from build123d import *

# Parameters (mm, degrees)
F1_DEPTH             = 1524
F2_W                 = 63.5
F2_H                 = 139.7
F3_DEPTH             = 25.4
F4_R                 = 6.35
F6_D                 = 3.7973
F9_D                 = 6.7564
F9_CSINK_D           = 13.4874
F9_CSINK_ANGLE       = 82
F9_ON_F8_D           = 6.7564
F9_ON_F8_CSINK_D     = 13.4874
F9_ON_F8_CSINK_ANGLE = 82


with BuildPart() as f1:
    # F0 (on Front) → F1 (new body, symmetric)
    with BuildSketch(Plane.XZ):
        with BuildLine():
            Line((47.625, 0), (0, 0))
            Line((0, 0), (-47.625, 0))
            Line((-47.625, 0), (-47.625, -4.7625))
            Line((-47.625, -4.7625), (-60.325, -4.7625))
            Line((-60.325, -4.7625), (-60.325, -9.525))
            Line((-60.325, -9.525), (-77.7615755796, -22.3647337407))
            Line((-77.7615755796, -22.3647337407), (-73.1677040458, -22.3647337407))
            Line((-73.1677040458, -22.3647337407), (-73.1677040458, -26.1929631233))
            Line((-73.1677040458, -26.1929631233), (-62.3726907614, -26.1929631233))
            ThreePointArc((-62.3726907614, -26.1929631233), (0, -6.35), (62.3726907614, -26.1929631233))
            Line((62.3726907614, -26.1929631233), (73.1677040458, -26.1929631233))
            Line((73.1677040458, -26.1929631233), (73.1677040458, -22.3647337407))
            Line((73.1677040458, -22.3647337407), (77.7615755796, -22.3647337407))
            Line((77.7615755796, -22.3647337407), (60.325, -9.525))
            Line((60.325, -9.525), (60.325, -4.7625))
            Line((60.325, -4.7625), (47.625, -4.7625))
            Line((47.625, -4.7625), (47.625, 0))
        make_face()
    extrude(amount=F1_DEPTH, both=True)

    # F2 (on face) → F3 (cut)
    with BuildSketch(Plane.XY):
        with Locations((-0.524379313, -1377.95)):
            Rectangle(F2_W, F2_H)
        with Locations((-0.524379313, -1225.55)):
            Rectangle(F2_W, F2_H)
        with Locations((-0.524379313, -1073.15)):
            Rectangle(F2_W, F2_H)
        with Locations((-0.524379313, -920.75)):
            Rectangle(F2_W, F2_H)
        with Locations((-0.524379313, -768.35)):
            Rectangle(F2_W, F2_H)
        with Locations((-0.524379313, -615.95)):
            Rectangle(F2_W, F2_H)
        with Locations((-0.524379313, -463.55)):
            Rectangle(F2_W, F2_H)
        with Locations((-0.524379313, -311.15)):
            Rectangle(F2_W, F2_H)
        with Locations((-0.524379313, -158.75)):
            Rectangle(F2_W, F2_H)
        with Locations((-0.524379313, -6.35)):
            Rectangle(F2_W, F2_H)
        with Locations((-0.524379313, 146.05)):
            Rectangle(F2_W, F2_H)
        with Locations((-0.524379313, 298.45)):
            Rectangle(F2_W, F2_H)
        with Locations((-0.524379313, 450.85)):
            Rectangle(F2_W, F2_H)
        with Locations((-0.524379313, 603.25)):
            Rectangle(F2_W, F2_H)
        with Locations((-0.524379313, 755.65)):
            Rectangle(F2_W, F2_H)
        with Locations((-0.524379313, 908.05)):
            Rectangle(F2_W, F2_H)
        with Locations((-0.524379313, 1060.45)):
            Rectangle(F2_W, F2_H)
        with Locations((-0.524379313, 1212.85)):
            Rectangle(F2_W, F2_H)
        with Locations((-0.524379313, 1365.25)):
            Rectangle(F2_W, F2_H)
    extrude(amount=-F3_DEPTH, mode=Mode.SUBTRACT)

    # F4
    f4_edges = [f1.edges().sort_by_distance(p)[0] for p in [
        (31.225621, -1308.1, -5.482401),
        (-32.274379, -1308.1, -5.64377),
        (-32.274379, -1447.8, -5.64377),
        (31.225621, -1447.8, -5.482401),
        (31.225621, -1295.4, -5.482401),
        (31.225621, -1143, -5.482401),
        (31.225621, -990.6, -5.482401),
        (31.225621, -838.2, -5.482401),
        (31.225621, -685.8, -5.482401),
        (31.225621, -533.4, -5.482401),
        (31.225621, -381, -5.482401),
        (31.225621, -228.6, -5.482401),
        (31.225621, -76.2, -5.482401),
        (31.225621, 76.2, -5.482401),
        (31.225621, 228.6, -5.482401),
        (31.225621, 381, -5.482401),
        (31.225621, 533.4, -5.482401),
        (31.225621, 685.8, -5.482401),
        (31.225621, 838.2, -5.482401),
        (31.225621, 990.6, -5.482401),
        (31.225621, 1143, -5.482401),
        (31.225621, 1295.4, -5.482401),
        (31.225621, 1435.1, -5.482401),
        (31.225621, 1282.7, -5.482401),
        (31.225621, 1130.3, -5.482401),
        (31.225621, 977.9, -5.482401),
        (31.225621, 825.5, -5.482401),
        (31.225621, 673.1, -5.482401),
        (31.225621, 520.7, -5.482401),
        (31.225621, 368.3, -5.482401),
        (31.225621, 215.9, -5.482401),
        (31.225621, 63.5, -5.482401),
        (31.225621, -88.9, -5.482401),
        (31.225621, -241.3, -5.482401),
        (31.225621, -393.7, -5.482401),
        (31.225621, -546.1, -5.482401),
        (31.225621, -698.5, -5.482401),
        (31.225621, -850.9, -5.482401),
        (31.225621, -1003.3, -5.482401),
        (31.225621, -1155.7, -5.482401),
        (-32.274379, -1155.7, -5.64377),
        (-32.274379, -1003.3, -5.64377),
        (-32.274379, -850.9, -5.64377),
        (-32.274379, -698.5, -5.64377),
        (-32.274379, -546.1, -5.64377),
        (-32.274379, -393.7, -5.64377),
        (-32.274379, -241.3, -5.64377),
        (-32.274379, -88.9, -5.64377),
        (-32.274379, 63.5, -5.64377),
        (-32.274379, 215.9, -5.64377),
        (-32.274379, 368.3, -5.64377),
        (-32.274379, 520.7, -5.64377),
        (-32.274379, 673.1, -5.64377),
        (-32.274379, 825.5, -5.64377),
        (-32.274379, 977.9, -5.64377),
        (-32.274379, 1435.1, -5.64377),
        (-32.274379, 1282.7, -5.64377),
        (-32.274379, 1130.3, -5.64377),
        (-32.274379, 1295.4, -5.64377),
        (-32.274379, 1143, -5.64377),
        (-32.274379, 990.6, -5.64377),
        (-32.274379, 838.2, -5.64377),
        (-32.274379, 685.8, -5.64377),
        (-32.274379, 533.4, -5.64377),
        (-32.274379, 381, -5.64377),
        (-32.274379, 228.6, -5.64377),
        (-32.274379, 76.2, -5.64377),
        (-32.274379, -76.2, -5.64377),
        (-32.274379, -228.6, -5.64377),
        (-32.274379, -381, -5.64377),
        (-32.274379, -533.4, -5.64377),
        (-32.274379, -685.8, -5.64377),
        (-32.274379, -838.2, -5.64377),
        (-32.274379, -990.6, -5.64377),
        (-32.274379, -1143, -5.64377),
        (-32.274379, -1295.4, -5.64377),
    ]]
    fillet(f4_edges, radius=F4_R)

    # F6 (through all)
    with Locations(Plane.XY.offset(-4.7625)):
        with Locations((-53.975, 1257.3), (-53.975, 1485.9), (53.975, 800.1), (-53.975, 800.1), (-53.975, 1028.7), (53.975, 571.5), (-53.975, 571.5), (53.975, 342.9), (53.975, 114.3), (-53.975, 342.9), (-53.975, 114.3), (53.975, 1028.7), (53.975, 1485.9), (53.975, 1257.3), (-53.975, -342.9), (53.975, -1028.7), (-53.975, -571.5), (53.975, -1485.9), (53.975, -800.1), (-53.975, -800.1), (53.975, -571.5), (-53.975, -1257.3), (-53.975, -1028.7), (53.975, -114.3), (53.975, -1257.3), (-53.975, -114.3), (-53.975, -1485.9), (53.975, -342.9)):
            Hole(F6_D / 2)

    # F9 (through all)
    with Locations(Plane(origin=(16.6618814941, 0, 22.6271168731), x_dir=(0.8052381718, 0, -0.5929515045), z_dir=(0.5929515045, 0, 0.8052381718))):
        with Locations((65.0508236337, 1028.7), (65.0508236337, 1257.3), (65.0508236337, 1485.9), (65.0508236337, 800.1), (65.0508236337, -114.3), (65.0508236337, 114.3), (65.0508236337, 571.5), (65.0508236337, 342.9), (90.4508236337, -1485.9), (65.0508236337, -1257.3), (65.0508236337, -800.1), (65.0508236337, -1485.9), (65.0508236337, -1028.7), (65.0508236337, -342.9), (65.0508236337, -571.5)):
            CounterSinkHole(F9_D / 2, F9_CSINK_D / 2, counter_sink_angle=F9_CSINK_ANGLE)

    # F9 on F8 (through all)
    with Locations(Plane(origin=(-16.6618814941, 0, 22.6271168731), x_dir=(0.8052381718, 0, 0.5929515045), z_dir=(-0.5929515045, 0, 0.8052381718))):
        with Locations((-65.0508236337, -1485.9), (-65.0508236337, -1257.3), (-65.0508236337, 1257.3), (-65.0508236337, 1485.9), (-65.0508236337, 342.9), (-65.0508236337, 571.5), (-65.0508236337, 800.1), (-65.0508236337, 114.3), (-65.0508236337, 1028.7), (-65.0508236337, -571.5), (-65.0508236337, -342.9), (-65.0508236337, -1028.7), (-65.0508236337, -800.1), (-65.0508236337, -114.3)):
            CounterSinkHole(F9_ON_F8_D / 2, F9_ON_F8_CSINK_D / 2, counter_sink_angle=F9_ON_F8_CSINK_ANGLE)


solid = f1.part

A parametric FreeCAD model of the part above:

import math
import FreeCAD as App
import Part
import Sketcher
from FreeCAD import Vector
Q = App.Units.Quantity


def edges_at(feature, points):
    """Names of the edges that pass closest to the given points."""
    edges = feature.Shape.Edges
    near = lambda p: min(range(len(edges)), key=lambda i: edges[i].distToShape(Part.Vertex(*p))[0])
    return sorted({f"Edge{near(p) + 1}" for p in points})


def add_polygon(sketch, points):
    """Adds a closed chain of lines whose ends are joined by coincident constraints."""
    first, n = sketch.GeometryCount, len(points)
    for a, b in zip(points, points[1:] + points[:1]):
        sketch.addGeometry(Part.LineSegment(App.Vector(*a, 0), App.Vector(*b, 0)), False)
    for i in range(n):
        sketch.addConstraint(Sketcher.Constraint("Coincident", first + i, 2, first + (i + 1) % n, 1))

doc = App.newDocument("Part")
body = doc.addObject("PartDesign::Body", "Body")

# Sketch on XZ plane
sketch1 = body.newObject("Sketcher::SketchObject", "Sketch")
sketch1.AttachmentSupport = (doc.getObject("XZ_Plane"), [""])
sketch1.MapMode = "FlatFace"
sketch1.addGeometry(Part.LineSegment(Vector(47.6, 0, 0), Vector(-47.6, 0, 0)), False)
sketch1.addGeometry(Part.LineSegment(Vector(-47.6, 0, 0), Vector(-47.6, -4.8, 0)), False)
sketch1.addGeometry(Part.LineSegment(Vector(-47.6, -4.8, 0), Vector(-60.3, -4.8, 0)), False)
sketch1.addGeometry(Part.LineSegment(Vector(-60.3, -4.8, 0), Vector(-60.3, -9.5, 0)), False)
sketch1.addGeometry(Part.LineSegment(Vector(-60.3, -9.5, 0), Vector(-77.8, -22.4, 0)), False)
sketch1.addGeometry(Part.LineSegment(Vector(-77.8, -22.4, 0), Vector(-73.2, -22.4, 0)), False)
sketch1.addGeometry(Part.LineSegment(Vector(-73.2, -22.4, 0), Vector(-73.2, -26.2, 0)), False)
sketch1.addGeometry(Part.LineSegment(Vector(-73.2, -26.2, 0), Vector(-62.4, -26.2, 0)), False)
sketch1.addGeometry(Part.ArcOfCircle(Part.Circle(Vector(0, -114.3, 0), Vector(0, 0, 1), 108), math.radians(55), math.radians(125)), False)
sketch1.addGeometry(Part.LineSegment(Vector(62.4, -26.2, 0), Vector(73.2, -26.2, 0)), False)
sketch1.addGeometry(Part.LineSegment(Vector(73.2, -26.2, 0), Vector(73.2, -22.4, 0)), False)
sketch1.addGeometry(Part.LineSegment(Vector(73.2, -22.4, 0), Vector(77.8, -22.4, 0)), False)
sketch1.addGeometry(Part.LineSegment(Vector(77.8, -22.4, 0), Vector(60.3, -9.5, 0)), False)
sketch1.addGeometry(Part.LineSegment(Vector(60.3, -9.5, 0), Vector(60.3, -4.8, 0)), False)
sketch1.addGeometry(Part.LineSegment(Vector(60.3, -4.8, 0), Vector(47.6, -4.8, 0)), False)
sketch1.addGeometry(Part.LineSegment(Vector(47.6, -4.8, 0), Vector(47.6, 0, 0)), False)
sketch1.addConstraint(Sketcher.Constraint("Coincident", 0, 2, 1, 1))
sketch1.addConstraint(Sketcher.Constraint("Coincident", 1, 2, 2, 1))
sketch1.addConstraint(Sketcher.Constraint("Coincident", 2, 2, 3, 1))
sketch1.addConstraint(Sketcher.Constraint("Coincident", 3, 2, 4, 1))
sketch1.addConstraint(Sketcher.Constraint("Coincident", 4, 2, 5, 1))
sketch1.addConstraint(Sketcher.Constraint("Coincident", 5, 2, 6, 1))
sketch1.addConstraint(Sketcher.Constraint("Coincident", 6, 2, 7, 1))
sketch1.addConstraint(Sketcher.Constraint("Coincident", 7, 2, 8, 2))
sketch1.addConstraint(Sketcher.Constraint("Coincident", 8, 1, 9, 1))
sketch1.addConstraint(Sketcher.Constraint("Coincident", 9, 2, 10, 1))
sketch1.addConstraint(Sketcher.Constraint("Coincident", 10, 2, 11, 1))
sketch1.addConstraint(Sketcher.Constraint("Coincident", 11, 2, 12, 1))
sketch1.addConstraint(Sketcher.Constraint("Coincident", 12, 2, 13, 1))
sketch1.addConstraint(Sketcher.Constraint("Coincident", 13, 2, 14, 1))
sketch1.addConstraint(Sketcher.Constraint("Coincident", 14, 2, 15, 1))
sketch1.addConstraint(Sketcher.Constraint("Coincident", 15, 2, 0, 1))
sketch1.addConstraint(Sketcher.Constraint("Horizontal", 0))
sketch1.addConstraint(Sketcher.Constraint("Vertical", 1))
sketch1.addConstraint(Sketcher.Constraint("Horizontal", 2))
sketch1.addConstraint(Sketcher.Constraint("Vertical", 3))
sketch1.addConstraint(Sketcher.Constraint("Horizontal", 5))
sketch1.addConstraint(Sketcher.Constraint("Vertical", 6))
sketch1.addConstraint(Sketcher.Constraint("Horizontal", 7))
sketch1.addConstraint(Sketcher.Constraint("Horizontal", 9))
sketch1.addConstraint(Sketcher.Constraint("Vertical", 10))
sketch1.addConstraint(Sketcher.Constraint("Horizontal", 11))
sketch1.addConstraint(Sketcher.Constraint("Vertical", 13))
sketch1.addConstraint(Sketcher.Constraint("Horizontal", 14))
sketch1.addConstraint(Sketcher.Constraint("Vertical", 15))
sketch1.addConstraint(Sketcher.Constraint("Symmetric", 0, 2, 15, 2, -1, 1))
sketch1.addConstraint(Sketcher.Constraint("Symmetric", 7, 2, 8, 1, -2))
sketch1.addConstraint(Sketcher.Constraint("Symmetric", 5, 2, 10, 2, -2))
sketch1.addConstraint(Sketcher.Constraint("Symmetric", 3, 2, 12, 2, -2))
sketch1.addConstraint(Sketcher.Constraint("Horizontal", 2, 2, 13, 2))
sketch1.addConstraint(Sketcher.Constraint("Equal", 5, 11))
sketch1.addConstraint(Sketcher.Constraint("Equal", 1, 3))
sketch1.addConstraint(Sketcher.Constraint("Radius", 8, Q("4.25 in")))
sketch1.addConstraint(Sketcher.Constraint("DistanceX", 2, 2, 2, 1, Q("0.5 in")))
sketch1.addConstraint(Sketcher.Constraint("DistanceX", 0, 2, 0, 1, Q("3.75 in")))
sketch1.addConstraint(Sketcher.Constraint("DistanceY", 8, 3, -1, 1, Q("4.5 in")))
sketch1.addConstraint(Sketcher.Constraint("DistanceY", 1, 2, 1, 1, Q("0.1875 in")))
sketch1.addConstraint(Sketcher.Constraint("DistanceX", 5, 1, 5, 2, 4.593872))
sketch1.addConstraint(Sketcher.Constraint("DistanceY", 6, 2, 6, 1, 3.828229))
sketch1.addConstraint(Sketcher.Constraint("DistanceX", 7, 1, 7, 2, 10.795013))
sketch1.addConstraint(Sketcher.Constraint("DistanceX", 7, 2, -1, 1, 62.372691))
pad1 = body.newObject("PartDesign::Pad", "Pad")
pad1.Profile = sketch1
pad1.Length = Q("120 in")
pad1.Midplane = True

# Sketch on XY plane
sketch2 = body.newObject("Sketcher::SketchObject", "Sketch001")
sketch2.AttachmentSupport = (doc.getObject("XY_Plane"), [""])
sketch2.MapMode = "FlatFace"
add_polygon(sketch2, [(-32, -1308), (-32, -1448), (31, -1448), (31, -1308)])  # lines 0-3
add_polygon(sketch2, [(-32, -1156), (-32, -1295), (31, -1295), (31, -1156)])  # lines 4-7
add_polygon(sketch2, [(-32, -1003), (-32, -1143), (31, -1143), (31, -1003)])  # lines 8-11
add_polygon(sketch2, [(-32, -851), (-32, -991), (31, -991), (31, -851)])  # lines 12-15
add_polygon(sketch2, [(-32, -698), (-32, -838), (31, -838), (31, -698)])  # lines 16-19
add_polygon(sketch2, [(-32, -546), (-32, -686), (31, -686), (31, -546)])  # lines 20-23
add_polygon(sketch2, [(-32, -394), (-32, -533), (31, -533), (31, -394)])  # lines 24-27
add_polygon(sketch2, [(-32, -241), (-32, -381), (31, -381), (31, -241)])  # lines 28-31
add_polygon(sketch2, [(-32, -89), (-32, -229), (31, -229), (31, -89)])  # lines 32-35
add_polygon(sketch2, [(-32, 64), (-32, -76), (31, -76), (31, 64)])  # lines 36-39
add_polygon(sketch2, [(-32, 216), (-32, 76), (31, 76), (31, 216)])  # lines 40-43
add_polygon(sketch2, [(-32, 368), (-32, 229), (31, 229), (31, 368)])  # lines 44-47
add_polygon(sketch2, [(-32, 521), (-32, 381), (31, 381), (31, 521)])  # lines 48-51
add_polygon(sketch2, [(-32, 673), (-32, 533), (31, 533), (31, 673)])  # lines 52-55
add_polygon(sketch2, [(-32, 826), (-32, 686), (31, 686), (31, 826)])  # lines 56-59
add_polygon(sketch2, [(-32, 978), (-32, 838), (31, 838), (31, 978)])  # lines 60-63
add_polygon(sketch2, [(-32, 1130), (-32, 991), (31, 991), (31, 1130)])  # lines 64-67
add_polygon(sketch2, [(-32, 1283), (-32, 1143), (31, 1143), (31, 1283)])  # lines 68-71
add_polygon(sketch2, [(-32, 1435), (-32, 1295), (31, 1295), (31, 1435)])  # lines 72-75
sketch2.addConstraint(Sketcher.Constraint("Vertical", 0))
sketch2.addConstraint(Sketcher.Constraint("Horizontal", 1))
sketch2.addConstraint(Sketcher.Constraint("Vertical", 2))
sketch2.addConstraint(Sketcher.Constraint("Horizontal", 3))
sketch2.addConstraint(Sketcher.Constraint("Vertical", 4))
sketch2.addConstraint(Sketcher.Constraint("Horizontal", 5))
sketch2.addConstraint(Sketcher.Constraint("Vertical", 6))
sketch2.addConstraint(Sketcher.Constraint("Horizontal", 7))
sketch2.addConstraint(Sketcher.Constraint("Vertical", 8))
sketch2.addConstraint(Sketcher.Constraint("Horizontal", 9))
sketch2.addConstraint(Sketcher.Constraint("Vertical", 10))
sketch2.addConstraint(Sketcher.Constraint("Horizontal", 11))
sketch2.addConstraint(Sketcher.Constraint("Vertical", 12))
sketch2.addConstraint(Sketcher.Constraint("Horizontal", 13))
sketch2.addConstraint(Sketcher.Constraint("Vertical", 14))
sketch2.addConstraint(Sketcher.Constraint("Horizontal", 15))
sketch2.addConstraint(Sketcher.Constraint("Vertical", 16))
sketch2.addConstraint(Sketcher.Constraint("Horizontal", 17))
sketch2.addConstraint(Sketcher.Constraint("Vertical", 18))
sketch2.addConstraint(Sketcher.Constraint("Horizontal", 19))
sketch2.addConstraint(Sketcher.Constraint("Vertical", 20))
sketch2.addConstraint(Sketcher.Constraint("Horizontal", 21))
sketch2.addConstraint(Sketcher.Constraint("Vertical", 22))
sketch2.addConstraint(Sketcher.Constraint("Horizontal", 23))
sketch2.addConstraint(Sketcher.Constraint("Vertical", 24))
sketch2.addConstraint(Sketcher.Constraint("Horizontal", 25))
sketch2.addConstraint(Sketcher.Constraint("Vertical", 26))
sketch2.addConstraint(Sketcher.Constraint("Horizontal", 27))
sketch2.addConstraint(Sketcher.Constraint("Vertical", 28))
sketch2.addConstraint(Sketcher.Constraint("Horizontal", 29))
sketch2.addConstraint(Sketcher.Constraint("Vertical", 30))
sketch2.addConstraint(Sketcher.Constraint("Horizontal", 31))
sketch2.addConstraint(Sketcher.Constraint("Vertical", 32))
sketch2.addConstraint(Sketcher.Constraint("Horizontal", 33))
sketch2.addConstraint(Sketcher.Constraint("Vertical", 34))
sketch2.addConstraint(Sketcher.Constraint("Horizontal", 35))
sketch2.addConstraint(Sketcher.Constraint("Vertical", 36))
sketch2.addConstraint(Sketcher.Constraint("Horizontal", 37))
sketch2.addConstraint(Sketcher.Constraint("Vertical", 38))
sketch2.addConstraint(Sketcher.Constraint("Horizontal", 39))
sketch2.addConstraint(Sketcher.Constraint("Vertical", 40))
sketch2.addConstraint(Sketcher.Constraint("Horizontal", 41))
sketch2.addConstraint(Sketcher.Constraint("Vertical", 42))
sketch2.addConstraint(Sketcher.Constraint("Horizontal", 43))
sketch2.addConstraint(Sketcher.Constraint("Vertical", 44))
sketch2.addConstraint(Sketcher.Constraint("Horizontal", 45))
sketch2.addConstraint(Sketcher.Constraint("Vertical", 46))
sketch2.addConstraint(Sketcher.Constraint("Horizontal", 47))
sketch2.addConstraint(Sketcher.Constraint("Vertical", 48))
sketch2.addConstraint(Sketcher.Constraint("Horizontal", 49))
sketch2.addConstraint(Sketcher.Constraint("Vertical", 50))
sketch2.addConstraint(Sketcher.Constraint("Horizontal", 51))
sketch2.addConstraint(Sketcher.Constraint("Vertical", 52))
sketch2.addConstraint(Sketcher.Constraint("Horizontal", 53))
sketch2.addConstraint(Sketcher.Constraint("Vertical", 54))
sketch2.addConstraint(Sketcher.Constraint("Horizontal", 55))
sketch2.addConstraint(Sketcher.Constraint("Vertical", 56))
sketch2.addConstraint(Sketcher.Constraint("Horizontal", 57))
sketch2.addConstraint(Sketcher.Constraint("Vertical", 58))
sketch2.addConstraint(Sketcher.Constraint("Horizontal", 59))
sketch2.addConstraint(Sketcher.Constraint("Vertical", 60))
sketch2.addConstraint(Sketcher.Constraint("Horizontal", 61))
sketch2.addConstraint(Sketcher.Constraint("Vertical", 62))
sketch2.addConstraint(Sketcher.Constraint("Horizontal", 63))
sketch2.addConstraint(Sketcher.Constraint("Vertical", 64))
sketch2.addConstraint(Sketcher.Constraint("Horizontal", 65))
sketch2.addConstraint(Sketcher.Constraint("Vertical", 66))
sketch2.addConstraint(Sketcher.Constraint("Horizontal", 67))
sketch2.addConstraint(Sketcher.Constraint("Vertical", 68))
sketch2.addConstraint(Sketcher.Constraint("Horizontal", 69))
sketch2.addConstraint(Sketcher.Constraint("Vertical", 70))
sketch2.addConstraint(Sketcher.Constraint("Horizontal", 71))
sketch2.addConstraint(Sketcher.Constraint("Vertical", 72))
sketch2.addConstraint(Sketcher.Constraint("Horizontal", 73))
sketch2.addConstraint(Sketcher.Constraint("Vertical", 74))
sketch2.addConstraint(Sketcher.Constraint("Horizontal", 75))
sketch2.addConstraint(Sketcher.Constraint("Symmetric", 36, 2, 40, 2, -1))
sketch2.addConstraint(Sketcher.Constraint("Symmetric", 32, 2, 44, 2, -1))
sketch2.addConstraint(Sketcher.Constraint("Symmetric", 28, 2, 48, 2, -1))
sketch2.addConstraint(Sketcher.Constraint("Symmetric", 24, 2, 52, 2, -1))
sketch2.addConstraint(Sketcher.Constraint("Symmetric", 20, 2, 56, 2, -1))
sketch2.addConstraint(Sketcher.Constraint("Symmetric", 16, 2, 60, 2, -1))
sketch2.addConstraint(Sketcher.Constraint("Symmetric", 12, 2, 64, 2, -1))
sketch2.addConstraint(Sketcher.Constraint("Symmetric", 8, 2, 68, 2, -1))
sketch2.addConstraint(Sketcher.Constraint("Symmetric", 4, 2, 72, 2, -1))
sketch2.addConstraint(Sketcher.Constraint("Vertical", 3, 2, 4, 2))
sketch2.addConstraint(Sketcher.Constraint("Vertical", 2, 2, 5, 2))
sketch2.addConstraint(Sketcher.Constraint("Vertical", 7, 2, 8, 2))
sketch2.addConstraint(Sketcher.Constraint("Vertical", 6, 2, 9, 2))
sketch2.addConstraint(Sketcher.Constraint("Vertical", 11, 2, 12, 2))
sketch2.addConstraint(Sketcher.Constraint("Vertical", 10, 2, 13, 2))
sketch2.addConstraint(Sketcher.Constraint("Vertical", 15, 2, 16, 2))
sketch2.addConstraint(Sketcher.Constraint("Vertical", 14, 2, 17, 2))
sketch2.addConstraint(Sketcher.Constraint("Vertical", 19, 2, 20, 2))
sketch2.addConstraint(Sketcher.Constraint("Vertical", 18, 2, 21, 2))
sketch2.addConstraint(Sketcher.Constraint("Vertical", 23, 2, 24, 2))
sketch2.addConstraint(Sketcher.Constraint("Vertical", 22, 2, 25, 2))
sketch2.addConstraint(Sketcher.Constraint("Vertical", 27, 2, 28, 2))
sketch2.addConstraint(Sketcher.Constraint("Vertical", 26, 2, 29, 2))
sketch2.addConstraint(Sketcher.Constraint("Vertical", 31, 2, 32, 2))
sketch2.addConstraint(Sketcher.Constraint("Vertical", 30, 2, 33, 2))
sketch2.addConstraint(Sketcher.Constraint("Vertical", 35, 2, 36, 2))
sketch2.addConstraint(Sketcher.Constraint("Vertical", 34, 2, 37, 2))
sketch2.addConstraint(Sketcher.Constraint("Vertical", 38, 2, 41, 2))
sketch2.addConstraint(Sketcher.Constraint("Vertical", 42, 2, 45, 2))
sketch2.addConstraint(Sketcher.Constraint("Vertical", 46, 2, 49, 2))
sketch2.addConstraint(Sketcher.Constraint("Vertical", 50, 2, 53, 2))
sketch2.addConstraint(Sketcher.Constraint("Vertical", 54, 2, 57, 2))
sketch2.addConstraint(Sketcher.Constraint("Vertical", 58, 2, 61, 2))
sketch2.addConstraint(Sketcher.Constraint("Vertical", 62, 2, 65, 2))
sketch2.addConstraint(Sketcher.Constraint("Vertical", 66, 2, 69, 2))
sketch2.addConstraint(Sketcher.Constraint("Vertical", 70, 2, 73, 2))
sketch2.addConstraint(Sketcher.Constraint("Equal", 2, 4))
sketch2.addConstraint(Sketcher.Constraint("Equal", 6, 8))
sketch2.addConstraint(Sketcher.Constraint("Equal", 10, 12))
sketch2.addConstraint(Sketcher.Constraint("Equal", 14, 16))
sketch2.addConstraint(Sketcher.Constraint("Equal", 18, 20))
sketch2.addConstraint(Sketcher.Constraint("Equal", 22, 24))
sketch2.addConstraint(Sketcher.Constraint("Equal", 26, 28))
sketch2.addConstraint(Sketcher.Constraint("Equal", 30, 32))
sketch2.addConstraint(Sketcher.Constraint("Equal", 34, 36))
sketch2.addConstraint(Sketcher.Constraint("Equal", 38, 40))
sketch2.addConstraint(Sketcher.Constraint("Equal", 42, 44))
sketch2.addConstraint(Sketcher.Constraint("Equal", 46, 48))
sketch2.addConstraint(Sketcher.Constraint("Equal", 50, 52))
sketch2.addConstraint(Sketcher.Constraint("Equal", 54, 56))
sketch2.addConstraint(Sketcher.Constraint("Equal", 58, 60))
sketch2.addConstraint(Sketcher.Constraint("Equal", 62, 64))
sketch2.addConstraint(Sketcher.Constraint("Equal", 66, 68))
sketch2.addConstraint(Sketcher.Constraint("Equal", 70, 72))
sketch2.addConstraint(Sketcher.Constraint("DistanceX", 1, 1, 1, 2, Q("2.5 in")))
sketch2.addConstraint(Sketcher.Constraint("DistanceY", 0, 2, 0, 1, Q("5.5 in")))
sketch2.addConstraint(Sketcher.Constraint("DistanceY", 0, 2, -1, 1, Q("57 in")))
sketch2.addConstraint(Sketcher.Constraint("DistanceY", 4, 2, -1, 1, Q("51 in")))
sketch2.addConstraint(Sketcher.Constraint("DistanceY", 8, 2, -1, 1, Q("45 in")))
sketch2.addConstraint(Sketcher.Constraint("DistanceY", 12, 2, -1, 1, Q("39 in")))
sketch2.addConstraint(Sketcher.Constraint("DistanceY", 16, 2, -1, 1, Q("33 in")))
sketch2.addConstraint(Sketcher.Constraint("DistanceY", 20, 2, -1, 1, Q("27 in")))
sketch2.addConstraint(Sketcher.Constraint("DistanceY", 24, 2, -1, 1, Q("21 in")))
sketch2.addConstraint(Sketcher.Constraint("DistanceY", 28, 2, -1, 1, Q("15 in")))
sketch2.addConstraint(Sketcher.Constraint("DistanceY", 32, 2, -1, 1, Q("9 in")))
sketch2.addConstraint(Sketcher.Constraint("DistanceY", 36, 2, -1, 1, Q("3 in")))
sketch2.addConstraint(Sketcher.Constraint("DistanceX", 0, 2, -1, 1, 32.274379))
pocket1 = body.newObject("PartDesign::Pocket", "Pocket")
pocket1.Profile = sketch2
pocket1.Length = Q("1 in")
doc.recompute()

fillet = body.newObject("PartDesign::Fillet", "Fillet")
fillet.Base = (pocket1, edges_at(pocket1, [
    (31.226, -1308.1, -5.482),
    (-32.274, -1308.1, -5.644),
    (-32.274, -1447.8, -5.644),
    (31.226, -1447.8, -5.482),
    (31.226, -1295.4, -5.482),
    (31.226, -1143, -5.482),
    (31.226, -990.6, -5.482),
    (31.226, -838.2, -5.482),
    (31.226, -685.8, -5.482),
    (31.226, -533.4, -5.482),
    (31.226, -381, -5.482),
    (31.226, -228.6, -5.482),
    (31.226, -76.2, -5.482),
    (31.226, 76.2, -5.482),
    (31.226, 228.6, -5.482),
    (31.226, 381, -5.482),
    (31.226, 533.4, -5.482),
    (31.226, 685.8, -5.482),
    (31.226, 838.2, -5.482),
    (31.226, 990.6, -5.482),
    (31.226, 1143, -5.482),
    (31.226, 1295.4, -5.482),
    (31.226, 1435.1, -5.482),
    (31.226, 1282.7, -5.482),
    (31.226, 1130.3, -5.482),
    (31.226, 977.9, -5.482),
    (31.226, 825.5, -5.482),
    (31.226, 673.1, -5.482),
    (31.226, 520.7, -5.482),
    (31.226, 368.3, -5.482),
    (31.226, 215.9, -5.482),
    (31.226, 63.5, -5.482),
    (31.226, -88.9, -5.482),
    (31.226, -241.3, -5.482),
    (31.226, -393.7, -5.482),
    (31.226, -546.1, -5.482),
    (31.226, -698.5, -5.482),
    (31.226, -850.9, -5.482),
    (31.226, -1003.3, -5.482),
    (31.226, -1155.7, -5.482),
    (-32.274, -1155.7, -5.644),
    (-32.274, -1003.3, -5.644),
    (-32.274, -850.9, -5.644),
    (-32.274, -698.5, -5.644),
    (-32.274, -546.1, -5.644),
    (-32.274, -393.7, -5.644),
    (-32.274, -241.3, -5.644),
    (-32.274, -88.9, -5.644),
    (-32.274, 63.5, -5.644),
    (-32.274, 215.9, -5.644),
    (-32.274, 368.3, -5.644),
    (-32.274, 520.7, -5.644),
    (-32.274, 673.1, -5.644),
    (-32.274, 825.5, -5.644),
    (-32.274, 977.9, -5.644),
    (-32.274, 1435.1, -5.644),
    (-32.274, 1282.7, -5.644),
    (-32.274, 1130.3, -5.644),
    (-32.274, 1295.4, -5.644),
    (-32.274, 1143, -5.644),
    (-32.274, 990.6, -5.644),
    (-32.274, 838.2, -5.644),
    (-32.274, 685.8, -5.644),
    (-32.274, 533.4, -5.644),
    (-32.274, 381, -5.644),
    (-32.274, 228.6, -5.644),
    (-32.274, 76.2, -5.644),
    (-32.274, -76.2, -5.644),
    (-32.274, -228.6, -5.644),
    (-32.274, -381, -5.644),
    (-32.274, -533.4, -5.644),
    (-32.274, -685.8, -5.644),
    (-32.274, -838.2, -5.644),
    (-32.274, -990.6, -5.644),
    (-32.274, -1143, -5.644),
    (-32.274, -1295.4, -5.644),
]))
fillet.Radius = Q("0.25 in")

# Sketch on XY plane
sketch3 = body.newObject("Sketcher::SketchObject", "Sketch002")
sketch3.AttachmentSupport = (doc.getObject("XY_Plane"), [""])
sketch3.MapMode = "FlatFace"
sketch3.AttachmentOffset = App.Placement(Vector(0, 0, -0.1875 * 25.4), App.Rotation())
sketch3.addGeometry(Part.Circle(Vector(-54, 1257.3, 0), Vector(0, 0, 1), 1.9), False)
sketch3.addGeometry(Part.Circle(Vector(-54, 1485.9, 0), Vector(0, 0, 1), 1.9), False)
sketch3.addGeometry(Part.Circle(Vector(54, 800.1, 0), Vector(0, 0, 1), 1.9), False)
sketch3.addGeometry(Part.Circle(Vector(-54, 800.1, 0), Vector(0, 0, 1), 1.9), False)
sketch3.addGeometry(Part.Circle(Vector(-54, 1028.7, 0), Vector(0, 0, 1), 1.9), False)
sketch3.addGeometry(Part.Circle(Vector(54, 571.5, 0), Vector(0, 0, 1), 1.9), False)
sketch3.addGeometry(Part.Circle(Vector(-54, 571.5, 0), Vector(0, 0, 1), 1.9), False)
sketch3.addGeometry(Part.Circle(Vector(54, 342.9, 0), Vector(0, 0, 1), 1.9), False)
sketch3.addGeometry(Part.Circle(Vector(54, 114.3, 0), Vector(0, 0, 1), 1.9), False)
sketch3.addGeometry(Part.Circle(Vector(-54, 342.9, 0), Vector(0, 0, 1), 1.9), False)
sketch3.addGeometry(Part.Circle(Vector(-54, 114.3, 0), Vector(0, 0, 1), 1.9), False)
sketch3.addGeometry(Part.Circle(Vector(54, 1028.7, 0), Vector(0, 0, 1), 1.9), False)
sketch3.addGeometry(Part.Circle(Vector(54, 1485.9, 0), Vector(0, 0, 1), 1.9), False)
sketch3.addGeometry(Part.Circle(Vector(54, 1257.3, 0), Vector(0, 0, 1), 1.9), False)
sketch3.addGeometry(Part.Circle(Vector(-54, -342.9, 0), Vector(0, 0, 1), 1.9), False)
sketch3.addGeometry(Part.Circle(Vector(54, -1028.7, 0), Vector(0, 0, 1), 1.9), False)
sketch3.addGeometry(Part.Circle(Vector(-54, -571.5, 0), Vector(0, 0, 1), 1.9), False)
sketch3.addGeometry(Part.Circle(Vector(54, -1485.9, 0), Vector(0, 0, 1), 1.9), False)
sketch3.addGeometry(Part.Circle(Vector(54, -800.1, 0), Vector(0, 0, 1), 1.9), False)
sketch3.addGeometry(Part.Circle(Vector(-54, -800.1, 0), Vector(0, 0, 1), 1.9), False)
sketch3.addGeometry(Part.Circle(Vector(54, -571.5, 0), Vector(0, 0, 1), 1.9), False)
sketch3.addGeometry(Part.Circle(Vector(-54, -1257.3, 0), Vector(0, 0, 1), 1.9), False)
sketch3.addGeometry(Part.Circle(Vector(-54, -1028.7, 0), Vector(0, 0, 1), 1.9), False)
sketch3.addGeometry(Part.Circle(Vector(54, -114.3, 0), Vector(0, 0, 1), 1.9), False)
sketch3.addGeometry(Part.Circle(Vector(54, -1257.3, 0), Vector(0, 0, 1), 1.9), False)
sketch3.addGeometry(Part.Circle(Vector(-54, -114.3, 0), Vector(0, 0, 1), 1.9), False)
sketch3.addGeometry(Part.Circle(Vector(-54, -1485.9, 0), Vector(0, 0, 1), 1.9), False)
sketch3.addGeometry(Part.Circle(Vector(54, -342.9, 0), Vector(0, 0, 1), 1.9), False)
sketch3.addConstraint(Sketcher.Constraint("Equal", 0, 1))
sketch3.addConstraint(Sketcher.Constraint("Equal", 1, 2))
sketch3.addConstraint(Sketcher.Constraint("Equal", 2, 3))
sketch3.addConstraint(Sketcher.Constraint("Equal", 3, 4))
sketch3.addConstraint(Sketcher.Constraint("Equal", 4, 5))
sketch3.addConstraint(Sketcher.Constraint("Equal", 5, 6))
sketch3.addConstraint(Sketcher.Constraint("Equal", 6, 7))
sketch3.addConstraint(Sketcher.Constraint("Equal", 7, 8))
sketch3.addConstraint(Sketcher.Constraint("Equal", 8, 9))
sketch3.addConstraint(Sketcher.Constraint("Equal", 9, 10))
sketch3.addConstraint(Sketcher.Constraint("Equal", 10, 11))
sketch3.addConstraint(Sketcher.Constraint("Equal", 11, 12))
sketch3.addConstraint(Sketcher.Constraint("Equal", 12, 13))
sketch3.addConstraint(Sketcher.Constraint("Equal", 13, 14))
sketch3.addConstraint(Sketcher.Constraint("Equal", 14, 15))
sketch3.addConstraint(Sketcher.Constraint("Equal", 15, 16))
sketch3.addConstraint(Sketcher.Constraint("Equal", 16, 17))
sketch3.addConstraint(Sketcher.Constraint("Equal", 17, 18))
sketch3.addConstraint(Sketcher.Constraint("Equal", 18, 19))
sketch3.addConstraint(Sketcher.Constraint("Equal", 19, 20))
sketch3.addConstraint(Sketcher.Constraint("Equal", 20, 21))
sketch3.addConstraint(Sketcher.Constraint("Equal", 21, 22))
sketch3.addConstraint(Sketcher.Constraint("Equal", 22, 23))
sketch3.addConstraint(Sketcher.Constraint("Equal", 23, 24))
sketch3.addConstraint(Sketcher.Constraint("Equal", 24, 25))
sketch3.addConstraint(Sketcher.Constraint("Equal", 25, 26))
sketch3.addConstraint(Sketcher.Constraint("Equal", 26, 27))
sketch3.addConstraint(Sketcher.Constraint("Symmetric", 7, 3, 14, 3, -1, 1))
sketch3.addConstraint(Sketcher.Constraint("Symmetric", 4, 3, 15, 3, -1, 1))
sketch3.addConstraint(Sketcher.Constraint("Symmetric", 5, 3, 16, 3, -1, 1))
sketch3.addConstraint(Sketcher.Constraint("Symmetric", 1, 3, 17, 3, -1, 1))
sketch3.addConstraint(Sketcher.Constraint("Symmetric", 3, 3, 18, 3, -1, 1))
sketch3.addConstraint(Sketcher.Constraint("Symmetric", 2, 3, 19, 3, -1, 1))
sketch3.addConstraint(Sketcher.Constraint("Symmetric", 6, 3, 20, 3, -1, 1))
sketch3.addConstraint(Sketcher.Constraint("Symmetric", 13, 3, 21, 3, -1, 1))
sketch3.addConstraint(Sketcher.Constraint("Symmetric", 11, 3, 22, 3, -1, 1))
sketch3.addConstraint(Sketcher.Constraint("Symmetric", 10, 3, 23, 3, -1, 1))
sketch3.addConstraint(Sketcher.Constraint("Symmetric", 0, 3, 24, 3, -1, 1))
sketch3.addConstraint(Sketcher.Constraint("Symmetric", 8, 3, 25, 3, -1, 1))
sketch3.addConstraint(Sketcher.Constraint("Symmetric", 12, 3, 26, 3, -1, 1))
sketch3.addConstraint(Sketcher.Constraint("Symmetric", 9, 3, 27, 3, -1, 1))
sketch3.addConstraint(Sketcher.Constraint("Symmetric", 2, 3, 3, 3, -2))
sketch3.addConstraint(Sketcher.Constraint("Symmetric", 5, 3, 6, 3, -2))
sketch3.addConstraint(Sketcher.Constraint("Symmetric", 7, 3, 9, 3, -2))
sketch3.addConstraint(Sketcher.Constraint("Symmetric", 8, 3, 10, 3, -2))
sketch3.addConstraint(Sketcher.Constraint("Symmetric", 4, 3, 11, 3, -2))
sketch3.addConstraint(Sketcher.Constraint("Symmetric", 1, 3, 12, 3, -2))
sketch3.addConstraint(Sketcher.Constraint("Symmetric", 0, 3, 13, 3, -2))
sketch3.addConstraint(Sketcher.Constraint("Vertical", 0, 3, 1, 3))
sketch3.addConstraint(Sketcher.Constraint("Vertical", 1, 3, 3, 3))
sketch3.addConstraint(Sketcher.Constraint("Vertical", 3, 3, 4, 3))
sketch3.addConstraint(Sketcher.Constraint("Vertical", 2, 3, 5, 3))
sketch3.addConstraint(Sketcher.Constraint("Vertical", 5, 3, 7, 3))
sketch3.addConstraint(Sketcher.Constraint("Vertical", 7, 3, 8, 3))
sketch3.addConstraint(Sketcher.Constraint("DistanceY", 0, 3, 1, 3, Q("9 in")))
sketch3.addConstraint(Sketcher.Constraint("DistanceY", 2, 3, 0, 3, Q("18 in")))
sketch3.addConstraint(Sketcher.Constraint("DistanceY", 4, 3, 0, 3, Q("9 in")))
sketch3.addConstraint(Sketcher.Constraint("DistanceY", 5, 3, 2, 3, Q("9 in")))
sketch3.addConstraint(Sketcher.Constraint("DistanceY", 7, 3, 5, 3, Q("9 in")))
sketch3.addConstraint(Sketcher.Constraint("DistanceY", 8, 3, 7, 3, Q("9 in")))
sketch3.addConstraint(Sketcher.Constraint("DistanceY", 14, 3, 10, 3, Q("18 in")))
sketch3.addConstraint(Sketcher.Constraint("Diameter", 0, Q("0.1495 in")))
sketch3.addConstraint(Sketcher.Constraint("DistanceX", 0, 3, 2, 3, Q("4.25 in")))
doc.recompute()
hole = body.newObject("PartDesign::Hole", "Hole")
hole.Profile = sketch3
hole.ThreadType = "None"
hole.Diameter = Q("0.1495 in")
hole.DepthType = "ThroughAll"

# Sketch on an angled plane
sketch4 = body.newObject("Sketcher::SketchObject", "Sketch003")
sketch4.Placement = App.Placement(Vector(16.661881, 0, 22.627117), App.Rotation(Vector(0.805238172, 0, -0.592951504), Vector(0, 1, 0), Vector(0.592951504, 0, 0.805238172), "ZXY"))
sketch4.addGeometry(Part.Circle(Vector(65.1, 1028.7, 0), Vector(0, 0, 1), 3.4), False)
sketch4.addGeometry(Part.Circle(Vector(65.1, 1257.3, 0), Vector(0, 0, 1), 3.4), False)
sketch4.addGeometry(Part.Circle(Vector(65.1, 1485.9, 0), Vector(0, 0, 1), 3.4), False)
sketch4.addGeometry(Part.Circle(Vector(65.1, 800.1, 0), Vector(0, 0, 1), 3.4), False)
sketch4.addGeometry(Part.Circle(Vector(65.1, -114.3, 0), Vector(0, 0, 1), 3.4), False)
sketch4.addGeometry(Part.Circle(Vector(65.1, 114.3, 0), Vector(0, 0, 1), 3.4), False)
sketch4.addGeometry(Part.Circle(Vector(65.1, 571.5, 0), Vector(0, 0, 1), 3.4), False)
sketch4.addGeometry(Part.Circle(Vector(65.1, 342.9, 0), Vector(0, 0, 1), 3.4), False)
sketch4.addGeometry(Part.Circle(Vector(90.5, -1485.9, 0), Vector(0, 0, 1), 3.4), False)
sketch4.addGeometry(Part.Circle(Vector(65.1, -1257.3, 0), Vector(0, 0, 1), 3.4), False)
sketch4.addGeometry(Part.Circle(Vector(65.1, -800.1, 0), Vector(0, 0, 1), 3.4), False)
sketch4.addGeometry(Part.Circle(Vector(65.1, -1485.9, 0), Vector(0, 0, 1), 3.4), False)
sketch4.addGeometry(Part.Circle(Vector(65.1, -1028.7, 0), Vector(0, 0, 1), 3.4), False)
sketch4.addGeometry(Part.Circle(Vector(65.1, -342.9, 0), Vector(0, 0, 1), 3.4), False)
sketch4.addGeometry(Part.Circle(Vector(65.1, -571.5, 0), Vector(0, 0, 1), 3.4), False)
sketch4.addConstraint(Sketcher.Constraint("Equal", 0, 1))
sketch4.addConstraint(Sketcher.Constraint("Equal", 1, 2))
sketch4.addConstraint(Sketcher.Constraint("Equal", 2, 3))
sketch4.addConstraint(Sketcher.Constraint("Equal", 3, 4))
sketch4.addConstraint(Sketcher.Constraint("Equal", 4, 5))
sketch4.addConstraint(Sketcher.Constraint("Equal", 5, 6))
sketch4.addConstraint(Sketcher.Constraint("Equal", 6, 7))
sketch4.addConstraint(Sketcher.Constraint("Equal", 7, 8))
sketch4.addConstraint(Sketcher.Constraint("Equal", 8, 9))
sketch4.addConstraint(Sketcher.Constraint("Equal", 9, 10))
sketch4.addConstraint(Sketcher.Constraint("Equal", 10, 11))
sketch4.addConstraint(Sketcher.Constraint("Equal", 11, 12))
sketch4.addConstraint(Sketcher.Constraint("Equal", 12, 13))
sketch4.addConstraint(Sketcher.Constraint("Equal", 13, 14))
sketch4.addConstraint(Sketcher.Constraint("Symmetric", 4, 3, 5, 3, -1))
sketch4.addConstraint(Sketcher.Constraint("Symmetric", 1, 3, 9, 3, -1))
sketch4.addConstraint(Sketcher.Constraint("Symmetric", 3, 3, 10, 3, -1))
sketch4.addConstraint(Sketcher.Constraint("Symmetric", 2, 3, 11, 3, -1))
sketch4.addConstraint(Sketcher.Constraint("Symmetric", 0, 3, 12, 3, -1))
sketch4.addConstraint(Sketcher.Constraint("Symmetric", 7, 3, 13, 3, -1))
sketch4.addConstraint(Sketcher.Constraint("Symmetric", 6, 3, 14, 3, -1))
sketch4.addConstraint(Sketcher.Constraint("Horizontal", 8, 3, 11, 3))
sketch4.addConstraint(Sketcher.Constraint("Vertical", 0, 3, 1, 3))
sketch4.addConstraint(Sketcher.Constraint("Vertical", 1, 3, 2, 3))
sketch4.addConstraint(Sketcher.Constraint("Vertical", 2, 3, 3, 3))
sketch4.addConstraint(Sketcher.Constraint("Vertical", 3, 3, 4, 3))
sketch4.addConstraint(Sketcher.Constraint("Vertical", 5, 3, 6, 3))
sketch4.addConstraint(Sketcher.Constraint("Vertical", 6, 3, 7, 3))
sketch4.addConstraint(Sketcher.Constraint("Diameter", 0, Q("0.266 in")))
sketch4.addConstraint(Sketcher.Constraint("DistanceY", 0, 3, 1, 3, Q("9 in")))
sketch4.addConstraint(Sketcher.Constraint("DistanceY", 1, 3, 2, 3, Q("9 in")))
sketch4.addConstraint(Sketcher.Constraint("DistanceY", 3, 3, 0, 3, Q("9 in")))
sketch4.addConstraint(Sketcher.Constraint("DistanceY", 4, 3, 3, 3, Q("36 in")))
sketch4.addConstraint(Sketcher.Constraint("DistanceY", 4, 3, 5, 3, Q("9 in")))
sketch4.addConstraint(Sketcher.Constraint("DistanceY", 6, 3, 3, 3, Q("9 in")))
sketch4.addConstraint(Sketcher.Constraint("DistanceY", 5, 3, 7, 3, Q("9 in")))
sketch4.addConstraint(Sketcher.Constraint("DistanceX", 4, 3, 8, 3, Q("1 in")))
sketch4.addConstraint(Sketcher.Constraint("DistanceX", -1, 1, 0, 3, 65.050824))
doc.recompute()
hole2 = body.newObject("PartDesign::Hole", "Hole001")
hole2.Profile = sketch4
hole2.ThreadType = "None"
hole2.Diameter = Q("0.266 in")
hole2.DepthType = "ThroughAll"
hole2.HoleCutType = "Countersink"
hole2.HoleCutDiameter = Q("0.531 in")
hole2.HoleCutCountersinkAngle = 82

# Sketch on an angled plane
sketch5 = body.newObject("Sketcher::SketchObject", "Sketch004")
sketch5.Placement = App.Placement(Vector(-16.661881, 0, 22.627117), App.Rotation(Vector(0.805238172, 0, 0.592951504), Vector(0, 1, 0), Vector(-0.592951504, 0, 0.805238172), "ZXY"))
sketch5.addGeometry(Part.Circle(Vector(-65.1, -1485.9, 0), Vector(0, 0, 1), 3.4), False)
sketch5.addGeometry(Part.Circle(Vector(-65.1, -1257.3, 0), Vector(0, 0, 1), 3.4), False)
sketch5.addGeometry(Part.Circle(Vector(-65.1, 1257.3, 0), Vector(0, 0, 1), 3.4), False)
sketch5.addGeometry(Part.Circle(Vector(-65.1, 1485.9, 0), Vector(0, 0, 1), 3.4), False)
sketch5.addGeometry(Part.Circle(Vector(-65.1, 342.9, 0), Vector(0, 0, 1), 3.4), False)
sketch5.addGeometry(Part.Circle(Vector(-65.1, 571.5, 0), Vector(0, 0, 1), 3.4), False)
sketch5.addGeometry(Part.Circle(Vector(-65.1, 800.1, 0), Vector(0, 0, 1), 3.4), False)
sketch5.addGeometry(Part.Circle(Vector(-65.1, 114.3, 0), Vector(0, 0, 1), 3.4), False)
sketch5.addGeometry(Part.Circle(Vector(-65.1, 1028.7, 0), Vector(0, 0, 1), 3.4), False)
sketch5.addGeometry(Part.Circle(Vector(-65.1, -571.5, 0), Vector(0, 0, 1), 3.4), False)
sketch5.addGeometry(Part.Circle(Vector(-65.1, -342.9, 0), Vector(0, 0, 1), 3.4), False)
sketch5.addGeometry(Part.Circle(Vector(-65.1, -1028.7, 0), Vector(0, 0, 1), 3.4), False)
sketch5.addGeometry(Part.Circle(Vector(-65.1, -800.1, 0), Vector(0, 0, 1), 3.4), False)
sketch5.addGeometry(Part.Circle(Vector(-65.1, -114.3, 0), Vector(0, 0, 1), 3.4), False)
sketch5.addConstraint(Sketcher.Constraint("Equal", 0, 1))
sketch5.addConstraint(Sketcher.Constraint("Equal", 1, 2))
sketch5.addConstraint(Sketcher.Constraint("Equal", 2, 3))
sketch5.addConstraint(Sketcher.Constraint("Equal", 3, 4))
sketch5.addConstraint(Sketcher.Constraint("Equal", 4, 5))
sketch5.addConstraint(Sketcher.Constraint("Equal", 5, 6))
sketch5.addConstraint(Sketcher.Constraint("Equal", 6, 7))
sketch5.addConstraint(Sketcher.Constraint("Equal", 7, 8))
sketch5.addConstraint(Sketcher.Constraint("Equal", 8, 9))
sketch5.addConstraint(Sketcher.Constraint("Equal", 9, 10))
sketch5.addConstraint(Sketcher.Constraint("Equal", 10, 11))
sketch5.addConstraint(Sketcher.Constraint("Equal", 11, 12))
sketch5.addConstraint(Sketcher.Constraint("Equal", 12, 13))
sketch5.addConstraint(Sketcher.Constraint("Symmetric", 1, 3, 2, 3, -1))
sketch5.addConstraint(Sketcher.Constraint("Symmetric", 0, 3, 3, 3, -1))
sketch5.addConstraint(Sketcher.Constraint("Symmetric", 5, 3, 9, 3, -1))
sketch5.addConstraint(Sketcher.Constraint("Symmetric", 4, 3, 10, 3, -1))
sketch5.addConstraint(Sketcher.Constraint("Symmetric", 8, 3, 11, 3, -1))
sketch5.addConstraint(Sketcher.Constraint("Symmetric", 6, 3, 12, 3, -1))
sketch5.addConstraint(Sketcher.Constraint("Symmetric", 7, 3, 13, 3, -1))
sketch5.addConstraint(Sketcher.Constraint("Vertical", 0, 3, 1, 3))
sketch5.addConstraint(Sketcher.Constraint("Vertical", 3, 3, 4, 3))
sketch5.addConstraint(Sketcher.Constraint("Vertical", 4, 3, 5, 3))
sketch5.addConstraint(Sketcher.Constraint("Vertical", 5, 3, 6, 3))
sketch5.addConstraint(Sketcher.Constraint("Vertical", 6, 3, 7, 3))
sketch5.addConstraint(Sketcher.Constraint("Vertical", 7, 3, 8, 3))
sketch5.addConstraint(Sketcher.Constraint("Diameter", 0, Q("0.266 in")))
sketch5.addConstraint(Sketcher.Constraint("DistanceY", 0, 3, 1, 3, Q("9 in")))
sketch5.addConstraint(Sketcher.Constraint("DistanceY", 1, 3, 2, 3, Q("98.9999999 in")))
sketch5.addConstraint(Sketcher.Constraint("DistanceY", 4, 3, 2, 3, Q("36 in")))
sketch5.addConstraint(Sketcher.Constraint("DistanceY", 4, 3, 5, 3, Q("9 in")))
sketch5.addConstraint(Sketcher.Constraint("DistanceY", 5, 3, 6, 3, Q("9 in")))
sketch5.addConstraint(Sketcher.Constraint("DistanceY", 7, 3, 4, 3, Q("9 in")))
sketch5.addConstraint(Sketcher.Constraint("DistanceY", 8, 3, 2, 3, Q("9 in")))
sketch5.addConstraint(Sketcher.Constraint("DistanceX", 0, 3, -1, 1, 65.050824))
doc.recompute()
hole3 = body.newObject("PartDesign::Hole", "Hole002")
hole3.Profile = sketch5
hole3.ThreadType = "None"
hole3.Diameter = Q("0.266 in")
hole3.DepthType = "ThroughAll"
hole3.HoleCutType = "Countersink"
hole3.HoleCutDiameter = Q("0.531 in")
hole3.HoleCutCountersinkAngle = 82

doc.recompute()
